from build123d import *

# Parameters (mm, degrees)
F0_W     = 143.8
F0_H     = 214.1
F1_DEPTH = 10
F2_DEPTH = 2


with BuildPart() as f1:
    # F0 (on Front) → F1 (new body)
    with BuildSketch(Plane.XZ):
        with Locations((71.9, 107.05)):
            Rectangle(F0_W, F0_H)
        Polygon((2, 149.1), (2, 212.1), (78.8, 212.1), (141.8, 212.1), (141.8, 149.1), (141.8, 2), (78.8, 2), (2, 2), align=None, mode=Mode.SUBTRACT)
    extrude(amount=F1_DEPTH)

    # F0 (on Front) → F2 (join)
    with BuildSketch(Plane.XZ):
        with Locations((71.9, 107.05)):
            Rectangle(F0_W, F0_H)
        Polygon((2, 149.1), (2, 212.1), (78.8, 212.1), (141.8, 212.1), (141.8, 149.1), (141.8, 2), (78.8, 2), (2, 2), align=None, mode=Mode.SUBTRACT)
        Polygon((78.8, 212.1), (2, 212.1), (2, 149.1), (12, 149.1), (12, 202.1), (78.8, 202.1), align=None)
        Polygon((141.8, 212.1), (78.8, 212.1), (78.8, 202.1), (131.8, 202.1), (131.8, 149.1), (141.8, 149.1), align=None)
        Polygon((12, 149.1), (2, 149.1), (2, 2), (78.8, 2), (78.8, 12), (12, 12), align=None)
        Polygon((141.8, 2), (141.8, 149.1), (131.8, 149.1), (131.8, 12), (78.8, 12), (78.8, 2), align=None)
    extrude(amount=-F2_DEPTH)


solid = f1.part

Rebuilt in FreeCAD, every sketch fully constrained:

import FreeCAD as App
import Part
import Sketcher
from FreeCAD import Vector


def add_polygon(sketch, points):
    """Adds a closed chain of lines whose ends are joined by coincident constraints."""
    first, n = sketch.GeometryCount, len(points)
    for a, b in zip(points, points[1:] + points[:1]):
        sketch.addGeometry(Part.LineSegment(App.Vector(*a, 0), App.Vector(*b, 0)), False)
    for i in range(n):
        sketch.addConstraint(Sketcher.Constraint("Coincident", first + i, 2, first + (i + 1) % n, 1))

doc = App.newDocument("Part")
body = doc.addObject("PartDesign::Body", "Body")

# Sketch on XZ plane
sketch1 = body.newObject("Sketcher::SketchObject", "Sketch")
sketch1.AttachmentSupport = (doc.getObject("XZ_Plane"), [""])
sketch1.MapMode = "FlatFace"
add_polygon(sketch1, [(0, 214), (0, 0), (144, 0), (144, 214)])  # lines 0-3
add_polygon(sketch1, [(2, 2), (2, 212), (142, 212), (142, 2)])  # lines 4-7
sketch1.addConstraint([
    Sketcher.Constraint("Vertical", 0),
    Sketcher.Constraint("Horizontal", 1),
    Sketcher.Constraint("Vertical", 2),
    Sketcher.Constraint("Horizontal", 3),
    Sketcher.Constraint("Vertical", 4),
    Sketcher.Constraint("Horizontal", 5),
    Sketcher.Constraint("Vertical", 6),
    Sketcher.Constraint("Horizontal", 7),
    Sketcher.Constraint("Coincident", 0, 2, -1, 1),
    Sketcher.Constraint("DistanceX", 1, 1, 1, 2, 143.8),
    Sketcher.Constraint("DistanceX", 5, 1, 5, 2, 139.8),
    Sketcher.Constraint("DistanceY", 0, 2, 0, 1, 214.1),
    Sketcher.Constraint("DistanceY", 4, 1, 4, 2, 210.1),
    Sketcher.Constraint("DistanceX", -1, 1, 4, 2, 2.0),
    Sketcher.Constraint("DistanceY", -1, 1, 6, 2, 2.0),
])
pad1 = body.newObject("PartDesign::Pad", "Pad")
pad1.Profile = sketch1
pad1.Length = 10

# Sketch on XZ plane
sketch2 = body.newObject("Sketcher::SketchObject", "Sketch001")
sketch2.AttachmentSupport = (doc.getObject("XZ_Plane"), [""])
sketch2.MapMode = "FlatFace"
add_polygon(sketch2, [(0, 214), (0, 0), (144, 0), (144, 214)])  # lines 0-3
add_polygon(sketch2, [(12, 202), (132, 202), (132, 12), (12, 12)])  # lines 4-7
sketch2.addConstraint([
    Sketcher.Constraint("Vertical", 0),
    Sketcher.Constraint("Horizontal", 1),
    Sketcher.Constraint("Vertical", 2),
    Sketcher.Constraint("Horizontal", 3),
    Sketcher.Constraint("Horizontal", 4),
    Sketcher.Constraint("Vertical", 5),
    Sketcher.Constraint("Horizontal", 6),
    Sketcher.Constraint("Vertical", 7),
    Sketcher.Constraint("Coincident", 0, 2, -1, 1),
    Sketcher.Constraint("DistanceX", 1, 1, 1, 2, 143.8),
    Sketcher.Constraint("DistanceX", 4, 1, 4, 2, 119.8),
    Sketcher.Constraint("DistanceY", 0, 2, 0, 1, 214.1),
    Sketcher.Constraint("DistanceY", 5, 2, 5, 1, 190.1),
    Sketcher.Constraint("DistanceY", -1, 1, 5, 2, 12.0),
    Sketcher.Constraint("DistanceX", -1, 1, 6, 2, 12.0),
])
pad2 = body.newObject("PartDesign::Pad", "Pad001")
pad2.Profile = sketch2
pad2.Length = 2
pad2.Reversed = True

doc.recompute()
